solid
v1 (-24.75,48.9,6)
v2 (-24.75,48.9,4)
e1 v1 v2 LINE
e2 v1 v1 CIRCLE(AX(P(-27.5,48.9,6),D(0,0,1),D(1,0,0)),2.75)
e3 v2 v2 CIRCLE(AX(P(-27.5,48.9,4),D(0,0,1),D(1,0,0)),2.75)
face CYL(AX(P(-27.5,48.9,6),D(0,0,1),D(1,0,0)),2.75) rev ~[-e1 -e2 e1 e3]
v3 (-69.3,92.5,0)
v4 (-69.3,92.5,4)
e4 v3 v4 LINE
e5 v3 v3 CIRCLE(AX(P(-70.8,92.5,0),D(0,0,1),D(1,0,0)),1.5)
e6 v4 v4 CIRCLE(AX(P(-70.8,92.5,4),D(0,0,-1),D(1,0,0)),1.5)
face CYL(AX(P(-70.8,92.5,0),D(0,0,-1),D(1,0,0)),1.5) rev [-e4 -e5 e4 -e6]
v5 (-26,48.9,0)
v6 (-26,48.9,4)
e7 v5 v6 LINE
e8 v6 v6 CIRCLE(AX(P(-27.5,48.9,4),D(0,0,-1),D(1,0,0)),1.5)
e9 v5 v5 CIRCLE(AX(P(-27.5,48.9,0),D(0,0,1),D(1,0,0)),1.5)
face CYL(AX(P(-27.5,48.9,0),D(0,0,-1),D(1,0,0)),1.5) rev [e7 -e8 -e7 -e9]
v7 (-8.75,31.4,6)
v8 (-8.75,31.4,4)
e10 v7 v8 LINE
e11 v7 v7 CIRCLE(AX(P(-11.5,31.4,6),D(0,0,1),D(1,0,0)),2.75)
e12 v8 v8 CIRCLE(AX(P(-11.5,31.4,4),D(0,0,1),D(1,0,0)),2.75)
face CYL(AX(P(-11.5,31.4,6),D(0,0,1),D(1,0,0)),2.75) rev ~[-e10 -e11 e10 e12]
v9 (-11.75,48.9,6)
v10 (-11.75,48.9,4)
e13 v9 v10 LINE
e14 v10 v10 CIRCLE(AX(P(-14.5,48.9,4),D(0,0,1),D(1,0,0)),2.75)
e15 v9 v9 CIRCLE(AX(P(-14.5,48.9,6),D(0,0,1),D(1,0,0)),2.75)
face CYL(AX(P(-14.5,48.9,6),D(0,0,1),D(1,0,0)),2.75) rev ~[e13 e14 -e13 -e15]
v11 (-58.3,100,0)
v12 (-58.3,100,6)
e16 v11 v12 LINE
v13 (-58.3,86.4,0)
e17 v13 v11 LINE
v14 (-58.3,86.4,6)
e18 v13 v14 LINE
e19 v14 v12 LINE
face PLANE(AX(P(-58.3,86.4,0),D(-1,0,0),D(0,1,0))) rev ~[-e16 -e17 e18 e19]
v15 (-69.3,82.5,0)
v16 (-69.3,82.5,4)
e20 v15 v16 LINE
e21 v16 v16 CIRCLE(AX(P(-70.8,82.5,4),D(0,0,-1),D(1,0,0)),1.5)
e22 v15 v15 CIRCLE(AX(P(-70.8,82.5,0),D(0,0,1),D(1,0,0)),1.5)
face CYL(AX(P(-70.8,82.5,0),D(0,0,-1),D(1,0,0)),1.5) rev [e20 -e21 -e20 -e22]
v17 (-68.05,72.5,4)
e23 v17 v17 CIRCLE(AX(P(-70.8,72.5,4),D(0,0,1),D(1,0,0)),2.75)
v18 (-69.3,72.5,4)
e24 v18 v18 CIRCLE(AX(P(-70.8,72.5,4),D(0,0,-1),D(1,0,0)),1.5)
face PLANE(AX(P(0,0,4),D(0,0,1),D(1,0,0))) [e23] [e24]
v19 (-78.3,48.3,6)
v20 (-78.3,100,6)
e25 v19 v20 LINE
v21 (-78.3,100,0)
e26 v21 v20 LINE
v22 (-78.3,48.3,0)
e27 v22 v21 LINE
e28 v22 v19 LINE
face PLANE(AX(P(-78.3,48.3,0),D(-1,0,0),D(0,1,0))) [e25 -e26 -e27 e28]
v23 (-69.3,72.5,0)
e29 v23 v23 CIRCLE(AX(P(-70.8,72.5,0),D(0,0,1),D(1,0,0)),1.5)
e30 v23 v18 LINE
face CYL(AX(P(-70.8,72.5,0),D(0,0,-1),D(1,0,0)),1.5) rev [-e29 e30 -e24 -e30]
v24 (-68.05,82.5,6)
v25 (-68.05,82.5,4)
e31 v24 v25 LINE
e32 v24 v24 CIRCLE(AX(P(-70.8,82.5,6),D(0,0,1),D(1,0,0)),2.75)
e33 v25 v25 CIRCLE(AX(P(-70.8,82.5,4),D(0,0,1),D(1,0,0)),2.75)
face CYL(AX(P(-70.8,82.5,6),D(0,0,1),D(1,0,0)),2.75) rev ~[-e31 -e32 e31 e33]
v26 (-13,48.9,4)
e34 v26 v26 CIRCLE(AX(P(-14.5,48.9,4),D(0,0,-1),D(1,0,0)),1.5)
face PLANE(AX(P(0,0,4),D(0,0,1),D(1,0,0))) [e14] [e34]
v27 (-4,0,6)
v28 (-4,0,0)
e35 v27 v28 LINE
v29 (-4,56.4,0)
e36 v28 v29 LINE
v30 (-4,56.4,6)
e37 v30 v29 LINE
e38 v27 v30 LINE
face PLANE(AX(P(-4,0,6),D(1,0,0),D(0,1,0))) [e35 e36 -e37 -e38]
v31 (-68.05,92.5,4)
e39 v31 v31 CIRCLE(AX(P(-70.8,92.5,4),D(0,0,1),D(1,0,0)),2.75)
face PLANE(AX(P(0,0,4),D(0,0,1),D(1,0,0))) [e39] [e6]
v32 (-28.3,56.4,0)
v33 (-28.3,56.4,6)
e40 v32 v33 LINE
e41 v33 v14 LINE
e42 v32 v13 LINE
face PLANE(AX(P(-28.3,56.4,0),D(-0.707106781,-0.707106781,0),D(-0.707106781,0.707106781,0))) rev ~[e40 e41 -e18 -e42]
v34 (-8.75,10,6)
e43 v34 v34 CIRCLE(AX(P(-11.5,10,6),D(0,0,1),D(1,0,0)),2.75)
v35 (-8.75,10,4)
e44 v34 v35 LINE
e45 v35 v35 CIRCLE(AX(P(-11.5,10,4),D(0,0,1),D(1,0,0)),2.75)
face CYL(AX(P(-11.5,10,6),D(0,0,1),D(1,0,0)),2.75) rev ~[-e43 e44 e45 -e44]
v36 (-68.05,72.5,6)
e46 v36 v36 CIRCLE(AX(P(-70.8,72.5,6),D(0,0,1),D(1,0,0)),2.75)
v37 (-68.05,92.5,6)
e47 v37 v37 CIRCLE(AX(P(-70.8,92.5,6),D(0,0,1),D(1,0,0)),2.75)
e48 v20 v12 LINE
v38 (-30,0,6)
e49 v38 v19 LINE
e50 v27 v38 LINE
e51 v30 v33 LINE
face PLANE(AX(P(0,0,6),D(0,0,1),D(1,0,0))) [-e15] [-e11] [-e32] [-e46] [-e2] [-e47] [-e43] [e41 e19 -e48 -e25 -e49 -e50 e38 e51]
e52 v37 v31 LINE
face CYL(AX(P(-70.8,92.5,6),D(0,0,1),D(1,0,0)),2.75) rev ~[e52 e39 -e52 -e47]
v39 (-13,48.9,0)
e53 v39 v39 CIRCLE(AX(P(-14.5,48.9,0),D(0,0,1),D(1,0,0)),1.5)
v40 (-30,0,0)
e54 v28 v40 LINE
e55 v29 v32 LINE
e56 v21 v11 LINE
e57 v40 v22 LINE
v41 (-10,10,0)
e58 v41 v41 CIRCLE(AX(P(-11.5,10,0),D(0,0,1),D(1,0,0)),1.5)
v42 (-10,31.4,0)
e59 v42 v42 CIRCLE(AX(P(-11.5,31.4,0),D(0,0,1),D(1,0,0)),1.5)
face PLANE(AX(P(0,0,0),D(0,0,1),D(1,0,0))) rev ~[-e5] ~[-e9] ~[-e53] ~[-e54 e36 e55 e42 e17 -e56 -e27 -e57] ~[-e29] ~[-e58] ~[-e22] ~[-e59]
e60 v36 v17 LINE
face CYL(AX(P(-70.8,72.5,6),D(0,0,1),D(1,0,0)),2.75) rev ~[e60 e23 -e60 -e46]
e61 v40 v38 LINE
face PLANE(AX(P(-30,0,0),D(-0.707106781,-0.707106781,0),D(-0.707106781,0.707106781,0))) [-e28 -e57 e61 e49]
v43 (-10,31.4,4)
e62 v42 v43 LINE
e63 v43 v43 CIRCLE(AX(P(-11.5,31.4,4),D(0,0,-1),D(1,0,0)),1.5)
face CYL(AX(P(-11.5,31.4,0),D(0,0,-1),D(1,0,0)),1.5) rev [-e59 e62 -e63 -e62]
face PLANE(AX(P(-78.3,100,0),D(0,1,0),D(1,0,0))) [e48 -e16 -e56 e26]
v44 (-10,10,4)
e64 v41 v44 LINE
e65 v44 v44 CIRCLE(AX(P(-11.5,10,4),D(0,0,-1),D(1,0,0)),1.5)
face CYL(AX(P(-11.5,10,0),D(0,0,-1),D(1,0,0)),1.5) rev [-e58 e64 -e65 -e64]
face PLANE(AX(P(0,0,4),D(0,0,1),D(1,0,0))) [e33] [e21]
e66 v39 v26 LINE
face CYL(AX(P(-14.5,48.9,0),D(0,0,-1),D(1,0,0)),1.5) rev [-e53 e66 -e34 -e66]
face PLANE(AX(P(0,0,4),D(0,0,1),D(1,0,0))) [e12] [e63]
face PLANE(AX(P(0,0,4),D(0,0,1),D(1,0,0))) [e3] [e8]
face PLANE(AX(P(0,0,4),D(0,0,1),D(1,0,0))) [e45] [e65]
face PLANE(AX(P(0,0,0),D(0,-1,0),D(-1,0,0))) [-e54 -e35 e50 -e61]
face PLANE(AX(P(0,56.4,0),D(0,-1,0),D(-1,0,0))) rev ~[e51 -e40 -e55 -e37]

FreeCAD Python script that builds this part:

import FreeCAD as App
import Part
import Sketcher
Q = App.Units.Quantity

doc = App.newDocument("Part")
body = doc.addObject("PartDesign::Body", "Body")

sketch1 = body.newObject("Sketcher::SketchObject", "Sketch")
sketch1.AttachmentSupport = (doc.getObject("XY_Plane"), [""])
sketch1.MapMode = "FlatFace"
sketch1.addGeometry(Part.LineSegment(App.Vector(-30, 0, 0), App.Vector(0, 0, 0)), False)
sketch1.addGeometry(Part.LineSegment(App.Vector(0, 0, 0), App.Vector(0, 56.4, 0)), False)
sketch1.addGeometry(Part.LineSegment(App.Vector(0, 56.4, 0), App.Vector(-28.3, 56.4, 0)), False)
sketch1.addGeometry(Part.LineSegment(App.Vector(-28.3, 56.4, 0), App.Vector(-58.3, 86.4, 0)), False)
sketch1.addGeometry(Part.LineSegment(App.Vector(-58.3, 86.4, 0), App.Vector(-58.3, 100, 0)), False)
sketch1.addGeometry(Part.LineSegment(App.Vector(-58.3, 100, 0), App.Vector(-78.3, 100, 0)), False)
sketch1.addGeometry(Part.LineSegment(App.Vector(-78.3, 100, 0), App.Vector(-78.3, 48.3, 0)), False)
sketch1.addGeometry(Part.LineSegment(App.Vector(-78.3, 48.3, 0), App.Vector(-30, 0, 0)), False)
sketch1.addGeometry(Part.Circle(App.Vector(-11.5, 10, 0), App.Vector(0, 0, 1), 1.5), False)
sketch1.addGeometry(Part.Circle(App.Vector(-27.5, 48.9, 0), App.Vector(0, 0, 1), 1.5), False)
sketch1.addGeometry(Part.Circle(App.Vector(-11.5, 31.4, 0), App.Vector(0, 0, 1), 1.5), False)
sketch1.addGeometry(Part.Circle(App.Vector(-14.5, 48.9, 0), App.Vector(0, 0, 1), 1.5), False)
sketch1.addGeometry(Part.Circle(App.Vector(-70.8, 72.5, 0), App.Vector(0, 0, 1), 1.5), False)
sketch1.addGeometry(Part.Circle(App.Vector(-70.8, 82.5, 0), App.Vector(0, 0, 1), 1.5), False)
sketch1.addGeometry(Part.Circle(App.Vector(-70.8, 92.5, 0), App.Vector(0, 0, 1), 1.5), False)
sketch1.addConstraint(Sketcher.Constraint("Coincident", 0, 2, 1, 1))
sketch1.addConstraint(Sketcher.Constraint("Coincident", 1, 2, 2, 1))
sketch1.addConstraint(Sketcher.Constraint("Coincident", 2, 2, 3, 1))
sketch1.addConstraint(Sketcher.Constraint("Coincident", 3, 2, 4, 1))
sketch1.addConstraint(Sketcher.Constraint("Coincident", 4, 2, 5, 1))
sketch1.addConstraint(Sketcher.Constraint("Coincident", 5, 2, 6, 1))
sketch1.addConstraint(Sketcher.Constraint("Coincident", 6, 2, 7, 1))
sketch1.addConstraint(Sketcher.Constraint("Coincident", 7, 2, 0, 1))
sketch1.addConstraint(Sketcher.Constraint("Horizontal", 0))
sketch1.addConstraint(Sketcher.Constraint("Vertical", 1))
sketch1.addConstraint(Sketcher.Constraint("Horizontal", 2))
sketch1.addConstraint(Sketcher.Constraint("Vertical", 4))
sketch1.addConstraint(Sketcher.Constraint("Horizontal", 5))
sketch1.addConstraint(Sketcher.Constraint("Vertical", 6))
sketch1.addConstraint(Sketcher.Constraint("Coincident", 0, 2, -1, 1))
sketch1.addConstraint(Sketcher.Constraint("Equal", 8, 9))
sketch1.addConstraint(Sketcher.Constraint("Equal", 9, 10))
sketch1.addConstraint(Sketcher.Constraint("Equal", 10, 11))
sketch1.addConstraint(Sketcher.Constraint("Equal", 11, 12))
sketch1.addConstraint(Sketcher.Constraint("Equal", 12, 13))
sketch1.addConstraint(Sketcher.Constraint("Equal", 13, 14))
sketch1.addConstraint(Sketcher.Constraint("Parallel", 3, 7))
sketch1.addConstraint(Sketcher.Constraint("Horizontal", 9, 3, 11, 3))
sketch1.addConstraint(Sketcher.Constraint("Vertical", 8, 3, 10, 3))
sketch1.addConstraint(Sketcher.Constraint("Vertical", 12, 3, 13, 3))
sketch1.addConstraint(Sketcher.Constraint("Vertical", 13, 3, 14, 3))
sketch1.addConstraint(Sketcher.Constraint("Diameter", 8, 3.0))
sketch1.addConstraint(Sketcher.Constraint("DistanceX", 5, 2, 5, 1, 20.0))
sketch1.addConstraint(Sketcher.Constraint("Angle", 3, Q("135 deg")))
sketch1.addConstraint(Sketcher.Constraint("DistanceX", 2, 2, 2, 1, 28.3))
sketch1.addConstraint(Sketcher.Constraint("DistanceY", 1, 1, 1, 2, 56.4))
sketch1.addConstraint(Sketcher.Constraint("DistanceY", -1, 1, 8, 3, 10.0))
sketch1.addConstraint(Sketcher.Constraint("DistanceY", -1, 1, 4, 2, 100.0))
sketch1.addConstraint(Sketcher.Constraint("DistanceX", 9, 3, 11, 3, 13.0))
sketch1.addConstraint(Sketcher.Constraint("DistanceX", 11, 3, 10, 3, 3.0))
sketch1.addConstraint(Sketcher.Constraint("DistanceY", 12, 3, 13, 3, 10.0))
sketch1.addConstraint(Sketcher.Constraint("DistanceY", 13, 3, 14, 3, 10.0))
sketch1.addConstraint(Sketcher.Constraint("DistanceX", 8, 3, -1, 1, 11.5))
sketch1.addConstraint(Sketcher.Constraint("DistanceX", 5, 2, -1, 1, 78.3))
sketch1.addConstraint(Sketcher.Constraint("DistanceY", -1, 1, 6, 2, 48.3))
sketch1.addConstraint(Sketcher.Constraint("DistanceY", 8, 3, 10, 3, 21.4))
sketch1.addConstraint(Sketcher.Constraint("DistanceY", 10, 3, 9, 3, 17.5))
sketch1.addConstraint(Sketcher.Constraint("DistanceY", 14, 3, 4, 2, 7.5))
sketch1.addConstraint(Sketcher.Constraint("DistanceX", 5, 2, 14, 3, 7.5))
pad1 = body.newObject("PartDesign::Pad", "Pad")
pad1.Profile = sketch1
pad1.Length = 6

sketch2 = body.newObject("Sketcher::SketchObject", "Sketch001")
sketch2.AttachmentSupport = (doc.getObject("XY_Plane"), [""])
sketch2.MapMode = "FlatFace"
sketch2.AttachmentOffset = App.Placement(App.Vector(0, 0, 6), App.Rotation())
sketch2.addGeometry(Part.LineSegment(App.Vector(-4, 56.4, 0), App.Vector(-4, 0, 0)), False)
sketch2.addGeometry(Part.LineSegment(App.Vector(-4, 0, 0), App.Vector(0, 0, 0)), False)
sketch2.addGeometry(Part.LineSegment(App.Vector(0, 0, 0), App.Vector(0, 56.4, 0)), False)
sketch2.addGeometry(Part.LineSegment(App.Vector(0, 56.4, 0), App.Vector(-4, 56.4, 0)), False)
sketch2.addConstraint(Sketcher.Constraint("Coincident", 0, 2, 1, 1))
sketch2.addConstraint(Sketcher.Constraint("Coincident", 1, 2, 2, 1))
sketch2.addConstraint(Sketcher.Constraint("Coincident", 2, 2, 3, 1))
sketch2.addConstraint(Sketcher.Constraint("Coincident", 3, 2, 0, 1))
sketch2.addConstraint(Sketcher.Constraint("Vertical", 0))
sketch2.addConstraint(Sketcher.Constraint("Horizontal", 1))
sketch2.addConstraint(Sketcher.Constraint("Vertical", 2))
sketch2.addConstraint(Sketcher.Constraint("Horizontal", 3))
sketch2.addConstraint(Sketcher.Constraint("Coincident", 1, 2, -1, 1))
sketch2.addConstraint(Sketcher.Constraint("DistanceX", 1, 1, 1, 2, 4.0))
sketch2.addConstraint(Sketcher.Constraint("DistanceY", 0, 2, 0, 1, 56.4))
pocket1 = body.newObject("PartDesign::Pocket", "Pocket")
pocket1.Profile = sketch2
pocket1.Length = 6

sketch3 = body.newObject("Sketcher::SketchObject", "Sketch002")
sketch3.AttachmentSupport = (doc.getObject("XY_Plane"), [""])
sketch3.MapMode = "FlatFace"
sketch3.AttachmentOffset = App.Placement(App.Vector(0, 0, 6), App.Rotation())
sketch3.addGeometry(Part.Circle(App.Vector(-11.5, 10, 0), App.Vector(0, 0, 1), 2.8), False)
sketch3.addGeometry(Part.Circle(App.Vector(-11.5, 31.4, 0), App.Vector(0, 0, 1), 2.8), False)
sketch3.addGeometry(Part.Circle(App.Vector(-14.5, 48.9, 0), App.Vector(0, 0, 1), 2.8), False)
sketch3.addGeometry(Part.Circle(App.Vector(-27.5, 48.9, 0), App.Vector(0, 0, 1), 2.8), False)
sketch3.addGeometry(Part.Circle(App.Vector(-70.8, 72.5, 0), App.Vector(0, 0, 1), 2.8), False)
sketch3.addGeometry(Part.Circle(App.Vector(-70.8, 82.5, 0), App.Vector(0, 0, 1), 2.8), False)
sketch3.addGeometry(Part.Circle(App.Vector(-70.8, 92.5, 0), App.Vector(0, 0, 1), 2.8), False)
sketch3.addConstraint(Sketcher.Constraint("Equal", 0, 1))
sketch3.addConstraint(Sketcher.Constraint("Equal", 1, 2))
sketch3.addConstraint(Sketcher.Constraint("Equal", 2, 3))
sketch3.addConstraint(Sketcher.Constraint("Equal", 3, 4))
sketch3.addConstraint(Sketcher.Constraint("Equal", 4, 5))
sketch3.addConstraint(Sketcher.Constraint("Equal", 5, 6))
sketch3.addConstraint(Sketcher.Constraint("Horizontal", 2, 3, 3, 3))
sketch3.addConstraint(Sketcher.Constraint("Vertical", 0, 3, 1, 3))
sketch3.addConstraint(Sketcher.Constraint("Vertical", 4, 3, 5, 3))
sketch3.addConstraint(Sketcher.Constraint("Vertical", 5, 3, 6, 3))
sketch3.addConstraint(Sketcher.Constraint("Diameter", 0, 5.5))
sketch3.addConstraint(Sketcher.Constraint("DistanceY", -1, 1, 0, 3, 10.0))
sketch3.addConstraint(Sketcher.Constraint("DistanceX", 2, 3, 1, 3, 3.0))
sketch3.addConstraint(Sketcher.Constraint("DistanceX", 3, 3, 2, 3, 13.0))
sketch3.addConstraint(Sketcher.Constraint("DistanceY", 4, 3, 5, 3, 10.0))
sketch3.addConstraint(Sketcher.Constraint("DistanceY", 5, 3, 6, 3, 10.0))
sketch3.addConstraint(Sketcher.Constraint("DistanceX", 0, 3, -1, 1, 11.5))
sketch3.addConstraint(Sketcher.Constraint("DistanceY", -1, 1, 1, 3, 31.4))
sketch3.addConstraint(Sketcher.Constraint("DistanceY", -1, 1, 2, 3, 48.9))
sketch3.addConstraint(Sketcher.Constraint("DistanceX", 4, 3, -1, 1, 70.8))
sketch3.addConstraint(Sketcher.Constraint("DistanceY", -1, 1, 4, 3, 72.5))
pocket2 = body.newObject("PartDesign::Pocket", "Pocket001")
pocket2.Profile = sketch3
pocket2.Length = 2

doc.recompute()
